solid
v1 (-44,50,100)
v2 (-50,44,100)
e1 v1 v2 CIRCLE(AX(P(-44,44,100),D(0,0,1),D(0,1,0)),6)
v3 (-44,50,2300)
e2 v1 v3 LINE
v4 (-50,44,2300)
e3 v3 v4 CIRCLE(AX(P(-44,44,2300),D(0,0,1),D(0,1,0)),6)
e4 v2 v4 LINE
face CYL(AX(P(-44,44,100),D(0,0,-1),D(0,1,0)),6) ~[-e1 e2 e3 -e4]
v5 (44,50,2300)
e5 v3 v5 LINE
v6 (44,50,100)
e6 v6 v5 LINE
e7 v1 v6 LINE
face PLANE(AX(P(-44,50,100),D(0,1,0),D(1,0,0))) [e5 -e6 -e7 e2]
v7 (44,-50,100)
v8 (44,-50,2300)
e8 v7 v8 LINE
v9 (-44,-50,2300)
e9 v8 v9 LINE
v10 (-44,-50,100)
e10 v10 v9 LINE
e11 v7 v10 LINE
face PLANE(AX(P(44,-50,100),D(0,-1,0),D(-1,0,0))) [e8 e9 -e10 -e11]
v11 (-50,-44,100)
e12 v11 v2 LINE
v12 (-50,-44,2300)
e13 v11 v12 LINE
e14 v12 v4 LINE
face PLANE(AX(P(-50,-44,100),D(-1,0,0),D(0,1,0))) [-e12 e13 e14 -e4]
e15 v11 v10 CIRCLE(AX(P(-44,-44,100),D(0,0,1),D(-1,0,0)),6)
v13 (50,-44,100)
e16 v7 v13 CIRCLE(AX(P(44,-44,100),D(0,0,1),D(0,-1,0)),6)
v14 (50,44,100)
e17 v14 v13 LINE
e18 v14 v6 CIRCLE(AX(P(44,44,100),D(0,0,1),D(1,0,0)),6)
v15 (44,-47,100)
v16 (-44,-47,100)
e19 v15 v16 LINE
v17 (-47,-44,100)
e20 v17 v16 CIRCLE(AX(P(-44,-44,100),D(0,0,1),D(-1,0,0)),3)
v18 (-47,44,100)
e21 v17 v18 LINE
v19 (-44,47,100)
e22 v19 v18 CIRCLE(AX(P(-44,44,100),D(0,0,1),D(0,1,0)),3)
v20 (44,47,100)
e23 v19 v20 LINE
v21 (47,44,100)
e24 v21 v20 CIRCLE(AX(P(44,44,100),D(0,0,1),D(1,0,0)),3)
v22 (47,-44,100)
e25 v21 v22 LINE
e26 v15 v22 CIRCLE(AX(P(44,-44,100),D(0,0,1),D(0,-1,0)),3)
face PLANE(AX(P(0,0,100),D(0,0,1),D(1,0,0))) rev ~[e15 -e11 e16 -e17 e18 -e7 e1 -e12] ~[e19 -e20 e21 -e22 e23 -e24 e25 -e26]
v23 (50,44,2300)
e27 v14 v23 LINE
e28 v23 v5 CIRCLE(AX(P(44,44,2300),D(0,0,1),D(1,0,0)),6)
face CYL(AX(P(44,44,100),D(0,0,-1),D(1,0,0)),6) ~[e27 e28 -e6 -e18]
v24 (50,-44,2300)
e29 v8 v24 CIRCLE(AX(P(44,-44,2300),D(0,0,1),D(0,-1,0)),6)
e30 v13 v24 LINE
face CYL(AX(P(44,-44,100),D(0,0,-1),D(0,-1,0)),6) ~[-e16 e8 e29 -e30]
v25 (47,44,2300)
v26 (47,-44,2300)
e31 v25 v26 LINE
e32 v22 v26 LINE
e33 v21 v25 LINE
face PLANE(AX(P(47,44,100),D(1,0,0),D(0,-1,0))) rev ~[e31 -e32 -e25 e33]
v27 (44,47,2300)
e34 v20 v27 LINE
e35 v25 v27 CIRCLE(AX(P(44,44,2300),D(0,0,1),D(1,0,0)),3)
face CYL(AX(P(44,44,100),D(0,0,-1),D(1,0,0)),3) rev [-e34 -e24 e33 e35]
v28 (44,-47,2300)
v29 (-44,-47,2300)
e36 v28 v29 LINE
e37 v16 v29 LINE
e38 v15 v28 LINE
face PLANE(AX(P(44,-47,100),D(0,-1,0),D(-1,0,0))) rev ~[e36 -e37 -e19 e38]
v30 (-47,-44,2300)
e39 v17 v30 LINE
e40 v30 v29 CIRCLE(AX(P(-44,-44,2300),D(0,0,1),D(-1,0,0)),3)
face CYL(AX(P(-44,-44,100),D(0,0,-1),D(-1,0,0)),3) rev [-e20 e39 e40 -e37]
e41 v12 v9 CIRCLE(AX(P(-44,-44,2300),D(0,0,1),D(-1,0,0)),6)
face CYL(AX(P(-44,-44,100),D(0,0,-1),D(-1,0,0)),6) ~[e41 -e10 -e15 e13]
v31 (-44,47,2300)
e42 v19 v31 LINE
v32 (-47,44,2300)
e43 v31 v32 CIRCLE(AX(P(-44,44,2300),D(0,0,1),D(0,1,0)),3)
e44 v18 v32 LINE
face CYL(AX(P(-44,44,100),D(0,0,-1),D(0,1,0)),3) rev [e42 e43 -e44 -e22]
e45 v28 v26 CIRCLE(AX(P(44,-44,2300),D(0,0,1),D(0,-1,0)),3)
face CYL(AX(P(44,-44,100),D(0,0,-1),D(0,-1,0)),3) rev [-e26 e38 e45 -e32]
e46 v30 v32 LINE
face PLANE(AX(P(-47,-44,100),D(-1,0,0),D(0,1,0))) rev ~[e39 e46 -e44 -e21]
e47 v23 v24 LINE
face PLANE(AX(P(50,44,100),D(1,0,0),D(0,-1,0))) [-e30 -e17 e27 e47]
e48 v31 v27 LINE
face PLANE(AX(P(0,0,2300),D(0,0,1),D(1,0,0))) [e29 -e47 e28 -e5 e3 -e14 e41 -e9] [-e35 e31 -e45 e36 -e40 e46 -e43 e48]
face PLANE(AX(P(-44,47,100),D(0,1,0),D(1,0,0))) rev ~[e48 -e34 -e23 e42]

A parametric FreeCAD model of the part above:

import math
import FreeCAD as App
import Part
import Sketcher

doc = App.newDocument("Part")
body = doc.addObject("PartDesign::Body", "Body")

# Sketch on XY plane
sketch1 = doc.addObject("Sketcher::SketchObject", "Sketch")
body.addObject(sketch1)
sketch1.AttachmentSupport = (doc.XY_Plane, [""])
sketch1.MapMode = "FlatFace"
sketch1.AttachmentOffset = App.Placement(App.Vector(0, 0, 100), App.Rotation())
sketch1.addGeometry([
    Part.LineSegment(App.Vector(-50, 44, 0), App.Vector(-50, -44, 0)),  # 0
    Part.ArcOfCircle(Part.Circle(App.Vector(-44, -44, 0), App.Vector(0, 0, 1), 6), math.radians(180), math.radians(270)),  # 1
    Part.LineSegment(App.Vector(-44, -50, 0), App.Vector(44, -50, 0)),  # 2
    Part.ArcOfCircle(Part.Circle(App.Vector(44, -44, 0), App.Vector(0, 0, 1), 6), math.radians(-90), math.radians(0)),  # 3
    Part.LineSegment(App.Vector(50, -44, 0), App.Vector(50, 44, 0)),  # 4
    Part.ArcOfCircle(Part.Circle(App.Vector(44, 44, 0), App.Vector(0, 0, 1), 6), math.radians(0), math.radians(90)),  # 5
    Part.LineSegment(App.Vector(44, 50, 0), App.Vector(-44, 50, 0)),  # 6
    Part.ArcOfCircle(Part.Circle(App.Vector(-44, 44, 0), App.Vector(0, 0, 1), 6), math.radians(90), math.radians(180)),  # 7
    Part.ArcOfCircle(Part.Circle(App.Vector(-44, 44, 0), App.Vector(0, 0, 1), 3), math.radians(90), math.radians(180)),  # 8
    Part.LineSegment(App.Vector(-44, 47, 0), App.Vector(44, 47, 0)),  # 9
    Part.ArcOfCircle(Part.Circle(App.Vector(44, 44, 0), App.Vector(0, 0, 1), 3), math.radians(0), math.radians(90)),  # 10
    Part.LineSegment(App.Vector(47, 44, 0), App.Vector(47, -44, 0)),  # 11
    Part.ArcOfCircle(Part.Circle(App.Vector(44, -44, 0), App.Vector(0, 0, 1), 3), math.radians(-90), math.radians(0)),  # 12
    Part.LineSegment(App.Vector(44, -47, 0), App.Vector(-44, -47, 0)),  # 13
    Part.ArcOfCircle(Part.Circle(App.Vector(-44, -44, 0), App.Vector(0, 0, 1), 3), math.radians(180), math.radians(270)),  # 14
    Part.LineSegment(App.Vector(-47, -44, 0), App.Vector(-47, 44, 0)),  # 15
], False)
sketch1.addConstraint([
    Sketcher.Constraint("Tangent", 0, 2, 1, 1),
    Sketcher.Constraint("Tangent", 1, 2, 2, 1),
    Sketcher.Constraint("Tangent", 2, 2, 3, 1),
    Sketcher.Constraint("Tangent", 3, 2, 4, 1),
    Sketcher.Constraint("Tangent", 4, 2, 5, 1),
    Sketcher.Constraint("Tangent", 5, 2, 6, 1),
    Sketcher.Constraint("Tangent", 6, 2, 7, 1),
    Sketcher.Constraint("Tangent", 7, 2, 0, 1),
    Sketcher.Constraint("Tangent", 8, 1, 9, 1),
    Sketcher.Constraint("Tangent", 9, 2, 10, 2),
    Sketcher.Constraint("Tangent", 10, 1, 11, 1),
    Sketcher.Constraint("Tangent", 11, 2, 12, 2),
    Sketcher.Constraint("Tangent", 12, 1, 13, 1),
    Sketcher.Constraint("Tangent", 13, 2, 14, 2),
    Sketcher.Constraint("Tangent", 14, 1, 15, 1),
    Sketcher.Constraint("Tangent", 15, 2, 8, 2),
    Sketcher.Constraint("Vertical", 0),
    Sketcher.Constraint("Horizontal", 2),
    Sketcher.Constraint("Vertical", 4),
    Sketcher.Constraint("Horizontal", 6),
    Sketcher.Constraint("Horizontal", 9),
    Sketcher.Constraint("Vertical", 11),
    Sketcher.Constraint("Horizontal", 13),
    Sketcher.Constraint("Vertical", 15),
    Sketcher.Constraint("Coincident", 8, 3, 7, 3),
    Sketcher.Constraint("Coincident", 10, 3, 5, 3),
    Sketcher.Constraint("Coincident", 12, 3, 3, 3),
    Sketcher.Constraint("Equal", 1, 3),
    Sketcher.Constraint("Equal", 3, 5),
    Sketcher.Constraint("Equal", 5, 7),
    Sketcher.Constraint("Equal", 12, 14),
    Sketcher.Constraint("Symmetric", 1, 3, 5, 3, -1, 1),
    Sketcher.Constraint("Equal", 13, 0),
    Sketcher.Constraint("Radius", 1, 6.0),
    Sketcher.Constraint("Radius", 8, 3.0),
    Sketcher.Constraint("DistanceX", 0, 2, -1, 1, 50.0),
])
pad1 = doc.addObject("PartDesign::Pad", "Pad")
body.addObject(pad1)
pad1.Profile = sketch1
pad1.Length = 2200

doc.recompute()
